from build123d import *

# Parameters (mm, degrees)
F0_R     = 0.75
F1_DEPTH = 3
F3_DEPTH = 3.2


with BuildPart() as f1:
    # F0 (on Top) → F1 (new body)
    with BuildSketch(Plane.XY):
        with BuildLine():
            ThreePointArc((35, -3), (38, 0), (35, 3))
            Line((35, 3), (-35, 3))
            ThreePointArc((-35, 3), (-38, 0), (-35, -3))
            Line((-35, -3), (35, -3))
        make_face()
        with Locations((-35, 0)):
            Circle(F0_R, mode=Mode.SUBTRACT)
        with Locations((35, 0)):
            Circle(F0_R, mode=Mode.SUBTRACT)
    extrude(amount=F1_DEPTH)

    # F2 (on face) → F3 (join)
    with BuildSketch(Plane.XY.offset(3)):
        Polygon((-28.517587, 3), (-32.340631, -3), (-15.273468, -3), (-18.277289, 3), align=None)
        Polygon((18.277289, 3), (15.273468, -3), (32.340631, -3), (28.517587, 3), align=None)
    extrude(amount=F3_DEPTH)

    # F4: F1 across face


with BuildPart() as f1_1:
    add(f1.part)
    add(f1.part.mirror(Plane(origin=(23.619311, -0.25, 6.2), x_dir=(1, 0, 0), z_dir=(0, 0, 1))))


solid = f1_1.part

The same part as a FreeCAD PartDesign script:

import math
import FreeCAD as App
import Part
import Sketcher

doc = App.newDocument("Part")
body = doc.addObject("PartDesign::Body", "Body")

sketch1 = body.newObject("Sketcher::SketchObject", "Sketch")
sketch1.AttachmentSupport = (doc.getObject("XY_Plane"), [""])
sketch1.MapMode = "FlatFace"
sketch1.addGeometry([
    Part.ArcOfCircle(Part.Circle(App.Vector(35, 0, 0), App.Vector(0, 0, 1), 3), math.radians(-90), math.radians(90)),
    Part.LineSegment(App.Vector(35, 3, 0), App.Vector(-35, 3, 0)),
    Part.ArcOfCircle(Part.Circle(App.Vector(-35, 0, 0), App.Vector(0, 0, 1), 3), math.radians(90), math.radians(270)),
    Part.LineSegment(App.Vector(-35, -3, 0), App.Vector(35, -3, 0)),
    Part.Circle(App.Vector(-35, 0, 0), App.Vector(0, 0, 1), 0.8),
    Part.Circle(App.Vector(35, 0, 0), App.Vector(0, 0, 1), 0.8),
], False)
sketch1.addConstraint([
    Sketcher.Constraint("Tangent", 0, 2, 1, 1),
    Sketcher.Constraint("Tangent", 1, 2, 2, 1),
    Sketcher.Constraint("Tangent", 2, 2, 3, 1),
    Sketcher.Constraint("Tangent", 3, 2, 0, 1),
    Sketcher.Constraint("Horizontal", 1),
    Sketcher.Constraint("Horizontal", 3),
    Sketcher.Constraint("Coincident", 4, 3, 2, 3),
    Sketcher.Constraint("Coincident", 5, 3, 0, 3),
    Sketcher.Constraint("Equal", 4, 5),
    Sketcher.Constraint("Symmetric", 0, 3, 2, 3, -1, 1),
    Sketcher.Constraint("Radius", 0, 3.0),
    Sketcher.Constraint("Diameter", 4, 1.5),
    Sketcher.Constraint("DistanceX", 1, 2, 1, 1, 70.0),
])
pad1 = body.newObject("PartDesign::Pad", "Pad")
pad1.Profile = sketch1
pad1.Length = 3

sketch2 = body.newObject("Sketcher::SketchObject", "Sketch001")
sketch2.AttachmentSupport = (doc.getObject("XY_Plane"), [""])
sketch2.MapMode = "FlatFace"
sketch2.AttachmentOffset = App.Placement(App.Vector(0, 0, 3), App.Rotation())
sketch2.addGeometry([
    Part.LineSegment(App.Vector(-29, 3, 0), App.Vector(-32, -3, 0)),
    Part.LineSegment(App.Vector(-32, -3, 0), App.Vector(-15, -3, 0)),
    Part.LineSegment(App.Vector(-15, -3, 0), App.Vector(-18, 3, 0)),
    Part.LineSegment(App.Vector(-18, 3, 0), App.Vector(-29, 3, 0)),
    Part.LineSegment(App.Vector(18, 3, 0), App.Vector(15, -3, 0)),
    Part.LineSegment(App.Vector(15, -3, 0), App.Vector(32, -3, 0)),
    Part.LineSegment(App.Vector(32, -3, 0), App.Vector(29, 3, 0)),
    Part.LineSegment(App.Vector(29, 3, 0), App.Vector(18, 3, 0)),
], False)
sketch2.addConstraint([
    Sketcher.Constraint("Coincident", 0, 2, 1, 1),
    Sketcher.Constraint("Coincident", 1, 2, 2, 1),
    Sketcher.Constraint("Coincident", 2, 2, 3, 1),
    Sketcher.Constraint("Coincident", 3, 2, 0, 1),
    Sketcher.Constraint("Coincident", 4, 2, 5, 1),
    Sketcher.Constraint("Coincident", 5, 2, 6, 1),
    Sketcher.Constraint("Coincident", 6, 2, 7, 1),
    Sketcher.Constraint("Coincident", 7, 2, 4, 1),
    Sketcher.Constraint("Horizontal", 1),
    Sketcher.Constraint("Horizontal", 3),
    Sketcher.Constraint("Horizontal", 5),
    Sketcher.Constraint("Horizontal", 7),
    Sketcher.Constraint("Symmetric", 1, 2, 4, 2, -2),
    Sketcher.Constraint("Symmetric", 3, 2, 6, 2, -2),
    Sketcher.Constraint("Equal", 1, 5),
    Sketcher.Constraint("Equal", 3, 7),
    Sketcher.Constraint("DistanceY", 0, 2, -1, 1, 3.0),
    Sketcher.Constraint("DistanceY", -1, 1, 2, 2, 3.0),
    Sketcher.Constraint("DistanceX", 0, 2, 4, 2, 47.614099),
    Sketcher.Constraint("Distance", 0, 7.114469),
    Sketcher.Constraint("DistanceX", 1, 1, 1, 2, 17.067163),
    Sketcher.Constraint("DistanceX", 3, 2, 3, 1, 10.240298),
])
pad2 = body.newObject("PartDesign::Pad", "Pad001")
pad2.Profile = sketch2
pad2.Length = 3.2
body2 = doc.addObject("PartDesign::Body", "Body001")
doc.recompute()

body2.BaseFeature = body
doc.recompute()

mirroring = doc.addObject("Part::Mirroring", "Mirroring")
mirroring.Source = body
mirroring.Base = App.Vector(23.619311, -0.25, 6.2)
mirroring.Normal = App.Vector(0, 0, 1)
body3 = doc.addObject("PartDesign::Body", "Body002")
body3.BaseFeature = mirroring
boolean = body2.newObject("PartDesign::Boolean", "Boolean")
boolean.Type = "Fuse"
boolean.addObjects([body3])
doc.recompute()
mirroring.Visibility = False

doc.recompute()
